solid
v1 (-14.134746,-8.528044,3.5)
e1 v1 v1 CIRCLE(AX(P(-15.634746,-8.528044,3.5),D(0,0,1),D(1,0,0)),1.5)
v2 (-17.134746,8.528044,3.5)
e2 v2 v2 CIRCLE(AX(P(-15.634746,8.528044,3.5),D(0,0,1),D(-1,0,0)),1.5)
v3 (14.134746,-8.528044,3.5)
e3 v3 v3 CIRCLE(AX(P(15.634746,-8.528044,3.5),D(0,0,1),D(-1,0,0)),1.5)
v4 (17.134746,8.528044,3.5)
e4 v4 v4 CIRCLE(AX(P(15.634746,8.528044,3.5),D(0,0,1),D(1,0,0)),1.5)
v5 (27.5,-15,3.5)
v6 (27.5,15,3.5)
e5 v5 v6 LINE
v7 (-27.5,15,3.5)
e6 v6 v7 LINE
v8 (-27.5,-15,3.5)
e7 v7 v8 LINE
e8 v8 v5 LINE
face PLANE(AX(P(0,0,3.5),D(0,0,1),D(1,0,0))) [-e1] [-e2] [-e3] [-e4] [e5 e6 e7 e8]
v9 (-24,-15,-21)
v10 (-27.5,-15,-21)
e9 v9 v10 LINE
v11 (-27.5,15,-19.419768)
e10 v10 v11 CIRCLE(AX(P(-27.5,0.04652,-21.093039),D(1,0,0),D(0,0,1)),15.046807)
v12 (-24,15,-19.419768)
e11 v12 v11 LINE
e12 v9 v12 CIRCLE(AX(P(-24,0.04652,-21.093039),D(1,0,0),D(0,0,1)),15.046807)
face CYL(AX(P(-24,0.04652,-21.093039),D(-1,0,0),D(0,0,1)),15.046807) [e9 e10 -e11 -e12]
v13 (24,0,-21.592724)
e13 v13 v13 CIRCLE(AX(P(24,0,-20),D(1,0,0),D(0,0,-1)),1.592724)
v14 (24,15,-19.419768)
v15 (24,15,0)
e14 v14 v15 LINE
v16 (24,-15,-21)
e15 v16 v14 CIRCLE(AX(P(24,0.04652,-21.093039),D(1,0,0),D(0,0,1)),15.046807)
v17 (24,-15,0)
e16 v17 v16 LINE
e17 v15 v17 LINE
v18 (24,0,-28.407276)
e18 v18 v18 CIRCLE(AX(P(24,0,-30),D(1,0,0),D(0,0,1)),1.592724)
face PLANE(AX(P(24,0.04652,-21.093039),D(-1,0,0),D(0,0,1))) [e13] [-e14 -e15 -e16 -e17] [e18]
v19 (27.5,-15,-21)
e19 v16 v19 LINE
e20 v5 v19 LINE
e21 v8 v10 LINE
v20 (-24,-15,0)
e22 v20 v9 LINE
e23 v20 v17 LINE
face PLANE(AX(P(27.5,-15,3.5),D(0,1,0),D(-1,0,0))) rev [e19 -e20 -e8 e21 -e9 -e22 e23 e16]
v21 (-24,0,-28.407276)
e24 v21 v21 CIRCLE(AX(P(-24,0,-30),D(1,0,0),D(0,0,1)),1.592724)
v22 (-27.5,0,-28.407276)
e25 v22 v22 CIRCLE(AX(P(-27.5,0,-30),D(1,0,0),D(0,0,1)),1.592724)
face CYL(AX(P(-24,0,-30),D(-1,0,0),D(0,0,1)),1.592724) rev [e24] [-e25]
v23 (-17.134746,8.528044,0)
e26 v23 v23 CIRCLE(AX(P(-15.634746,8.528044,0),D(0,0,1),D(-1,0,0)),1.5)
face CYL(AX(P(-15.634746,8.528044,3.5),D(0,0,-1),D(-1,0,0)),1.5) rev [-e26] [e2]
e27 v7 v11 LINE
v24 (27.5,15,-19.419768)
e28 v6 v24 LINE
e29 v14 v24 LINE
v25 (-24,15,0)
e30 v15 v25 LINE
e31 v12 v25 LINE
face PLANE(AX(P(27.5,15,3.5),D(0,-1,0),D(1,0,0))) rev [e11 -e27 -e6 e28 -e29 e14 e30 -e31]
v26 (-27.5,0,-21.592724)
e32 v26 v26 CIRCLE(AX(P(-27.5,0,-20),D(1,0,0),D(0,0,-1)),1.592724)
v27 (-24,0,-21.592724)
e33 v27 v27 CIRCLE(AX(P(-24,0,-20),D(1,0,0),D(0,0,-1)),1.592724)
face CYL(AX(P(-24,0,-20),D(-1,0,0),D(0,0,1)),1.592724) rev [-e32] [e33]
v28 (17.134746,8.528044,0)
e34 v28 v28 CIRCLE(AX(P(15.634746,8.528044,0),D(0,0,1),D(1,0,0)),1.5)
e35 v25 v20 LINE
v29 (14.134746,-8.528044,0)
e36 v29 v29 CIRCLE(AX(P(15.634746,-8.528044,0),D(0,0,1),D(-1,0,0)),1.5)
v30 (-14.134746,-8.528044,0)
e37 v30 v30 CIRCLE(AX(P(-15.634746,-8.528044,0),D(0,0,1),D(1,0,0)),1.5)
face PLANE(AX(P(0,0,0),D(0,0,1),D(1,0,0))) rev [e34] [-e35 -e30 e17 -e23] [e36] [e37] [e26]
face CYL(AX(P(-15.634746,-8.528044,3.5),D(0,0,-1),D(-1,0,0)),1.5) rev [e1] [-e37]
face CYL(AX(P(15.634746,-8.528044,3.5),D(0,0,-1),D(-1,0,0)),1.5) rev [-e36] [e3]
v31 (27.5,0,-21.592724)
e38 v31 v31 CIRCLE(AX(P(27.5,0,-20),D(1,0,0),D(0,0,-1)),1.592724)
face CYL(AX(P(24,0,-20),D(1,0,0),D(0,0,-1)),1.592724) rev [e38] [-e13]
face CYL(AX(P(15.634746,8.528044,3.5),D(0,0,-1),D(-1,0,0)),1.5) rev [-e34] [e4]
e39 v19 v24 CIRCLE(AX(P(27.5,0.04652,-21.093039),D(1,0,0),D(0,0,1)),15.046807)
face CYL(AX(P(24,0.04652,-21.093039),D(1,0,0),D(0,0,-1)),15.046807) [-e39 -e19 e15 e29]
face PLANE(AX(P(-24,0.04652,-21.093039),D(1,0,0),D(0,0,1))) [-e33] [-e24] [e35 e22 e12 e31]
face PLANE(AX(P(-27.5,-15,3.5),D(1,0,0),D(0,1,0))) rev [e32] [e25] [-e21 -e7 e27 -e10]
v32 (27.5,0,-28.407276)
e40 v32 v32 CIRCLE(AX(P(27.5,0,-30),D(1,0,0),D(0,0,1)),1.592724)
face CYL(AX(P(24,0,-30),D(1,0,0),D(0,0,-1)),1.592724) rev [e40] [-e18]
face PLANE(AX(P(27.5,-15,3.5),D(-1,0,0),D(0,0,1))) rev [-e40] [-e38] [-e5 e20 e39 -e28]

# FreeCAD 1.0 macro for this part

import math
import FreeCAD as App
import Part
import Sketcher
Q = App.Units.Quantity

doc = App.newDocument("Part")
body = doc.addObject("PartDesign::Body", "Body")

# Sketch on XY plane
sketch1 = body.newObject("Sketcher::SketchObject", "Sketch")
sketch1.AttachmentSupport = (doc.getObject("XY_Plane"), [""])
sketch1.MapMode = "FlatFace"
sketch1.addGeometry(Part.LineSegment(App.Vector(-27.5, 15, 0), App.Vector(-27.5, -15, 0)), False)
sketch1.addGeometry(Part.LineSegment(App.Vector(-27.5, -15, 0), App.Vector(27.5, -15, 0)), False)
sketch1.addGeometry(Part.LineSegment(App.Vector(27.5, -15, 0), App.Vector(27.5, 15, 0)), False)
sketch1.addGeometry(Part.LineSegment(App.Vector(27.5, 15, 0), App.Vector(-27.5, 15, 0)), False)
sketch1.addGeometry(Part.Circle(App.Vector(-15.634746, -8.528044, 0), App.Vector(0, 0, 1), 1.5), False)
sketch1.addGeometry(Part.Circle(App.Vector(15.634746, -8.528044, 0), App.Vector(0, 0, 1), 1.5), False)
sketch1.addGeometry(Part.Circle(App.Vector(-15.634746, 8.528044, 0), App.Vector(0, 0, 1), 1.5), False)
sketch1.addGeometry(Part.Circle(App.Vector(15.634746, 8.528044, 0), App.Vector(0, 0, 1), 1.5), False)
sketch1.addConstraint(Sketcher.Constraint("Coincident", 0, 2, 1, 1))
sketch1.addConstraint(Sketcher.Constraint("Coincident", 1, 2, 2, 1))
sketch1.addConstraint(Sketcher.Constraint("Coincident", 2, 2, 3, 1))
sketch1.addConstraint(Sketcher.Constraint("Coincident", 3, 2, 0, 1))
sketch1.addConstraint(Sketcher.Constraint("Vertical", 0))
sketch1.addConstraint(Sketcher.Constraint("Horizontal", 1))
sketch1.addConstraint(Sketcher.Constraint("Vertical", 2))
sketch1.addConstraint(Sketcher.Constraint("Horizontal", 3))
sketch1.addConstraint(Sketcher.Constraint("Equal", 4, 5))
sketch1.addConstraint(Sketcher.Constraint("Equal", 5, 6))
sketch1.addConstraint(Sketcher.Constraint("Equal", 6, 7))
sketch1.addConstraint(Sketcher.Constraint("Symmetric", 5, 3, 6, 3, -1, 1))
sketch1.addConstraint(Sketcher.Constraint("Symmetric", 4, 3, 7, 3, -1, 1))
sketch1.addConstraint(Sketcher.Constraint("Symmetric", 0, 2, 2, 2, -1, 1))
sketch1.addConstraint(Sketcher.Constraint("Symmetric", 4, 3, 5, 3, -2))
sketch1.addConstraint(Sketcher.Constraint("Diameter", 4, Q("3 mm")))
sketch1.addConstraint(Sketcher.Constraint("DistanceX", 1, 1, 1, 2, Q("55 mm")))
sketch1.addConstraint(Sketcher.Constraint("DistanceY", 0, 2, 0, 1, Q("30 mm")))
sketch1.addConstraint(Sketcher.Constraint("DistanceX", 4, 3, -1, 1, Q("15.634746 mm")))
sketch1.addConstraint(Sketcher.Constraint("DistanceY", 4, 3, -1, 1, Q("8.528044 mm")))
pad1 = body.newObject("PartDesign::Pad", "Pad")
pad1.Profile = sketch1
pad1.Length = 3.5

# Sketch on YZ plane
sketch2 = body.newObject("Sketcher::SketchObject", "Sketch001")
sketch2.AttachmentSupport = (doc.getObject("YZ_Plane"), [""])
sketch2.MapMode = "FlatFace"
sketch2.AttachmentOffset = App.Placement(App.Vector(0, 0, 27.5), App.Rotation())
sketch2.addGeometry(Part.LineSegment(App.Vector(15, 0, 0), App.Vector(-15, 0, 0)), False)
sketch2.addGeometry(Part.LineSegment(App.Vector(-15, 0, 0), App.Vector(-15, -21, 0)), False)
sketch2.addGeometry(Part.ArcOfCircle(Part.Circle(App.Vector(0.04652, -21.093039, 0), App.Vector(0, 0, 1), 15.046807), math.radians(179.645719), math.radians(366.384751)), False)
sketch2.addGeometry(Part.LineSegment(App.Vector(15, -19.419768, 0), App.Vector(15, 0, 0)), False)
sketch2.addGeometry(Part.Circle(App.Vector(0, -20, 0), App.Vector(0, 0, 1), 1.592724), False)
sketch2.addGeometry(Part.Circle(App.Vector(0, -30, 0), App.Vector(0, 0, 1), 1.592724), False)
sketch2.addConstraint(Sketcher.Constraint("Coincident", 0, 2, 1, 1))
sketch2.addConstraint(Sketcher.Constraint("Coincident", 1, 2, 2, 1))
sketch2.addConstraint(Sketcher.Constraint("Coincident", 2, 2, 3, 1))
sketch2.addConstraint(Sketcher.Constraint("Coincident", 3, 2, 0, 1))
sketch2.addConstraint(Sketcher.Constraint("Horizontal", 0))
sketch2.addConstraint(Sketcher.Constraint("Vertical", 1))
sketch2.addConstraint(Sketcher.Constraint("Vertical", 3))
sketch2.addConstraint(Sketcher.Constraint("Equal", 4, 5))
sketch2.addConstraint(Sketcher.Constraint("Symmetric", 0, 2, 3, 2, -1, 1))
sketch2.addConstraint(Sketcher.Constraint("PointOnObject", 4, 3, -2))
sketch2.addConstraint(Sketcher.Constraint("PointOnObject", 5, 3, -2))
sketch2.addConstraint(Sketcher.Constraint("DistanceX", 0, 2, 0, 1, Q("30 mm")))
sketch2.addConstraint(Sketcher.Constraint("DistanceY", 1, 2, 1, 1, Q("21 mm")))
sketch2.addConstraint(Sketcher.Constraint("DistanceY", 4, 3, -1, 1, Q("20 mm")))
sketch2.addConstraint(Sketcher.Constraint("DistanceY", 5, 3, -1, 1, Q("30 mm")))
sketch2.addConstraint(Sketcher.Constraint("Diameter", 4, Q("3.185447 mm")))
sketch2.addConstraint(Sketcher.Constraint("Radius", 2, Q("15.046807 mm")))
sketch2.addConstraint(Sketcher.Constraint("DistanceY", 3, 1, 3, 2, Q("19.419768 mm")))
pad2 = body.newObject("PartDesign::Pad", "Pad001")
pad2.Profile = sketch2
pad2.Length = 3.5
pad2.Reversed = True
doc.recompute()

mirrored = body.newObject("PartDesign::Mirrored", "Mirrored")
mirrored.Originals = [pad2]
mirrored.MirrorPlane = (doc.getObject("YZ_Plane"), [""])
body.Tip = mirrored

doc.recompute()
